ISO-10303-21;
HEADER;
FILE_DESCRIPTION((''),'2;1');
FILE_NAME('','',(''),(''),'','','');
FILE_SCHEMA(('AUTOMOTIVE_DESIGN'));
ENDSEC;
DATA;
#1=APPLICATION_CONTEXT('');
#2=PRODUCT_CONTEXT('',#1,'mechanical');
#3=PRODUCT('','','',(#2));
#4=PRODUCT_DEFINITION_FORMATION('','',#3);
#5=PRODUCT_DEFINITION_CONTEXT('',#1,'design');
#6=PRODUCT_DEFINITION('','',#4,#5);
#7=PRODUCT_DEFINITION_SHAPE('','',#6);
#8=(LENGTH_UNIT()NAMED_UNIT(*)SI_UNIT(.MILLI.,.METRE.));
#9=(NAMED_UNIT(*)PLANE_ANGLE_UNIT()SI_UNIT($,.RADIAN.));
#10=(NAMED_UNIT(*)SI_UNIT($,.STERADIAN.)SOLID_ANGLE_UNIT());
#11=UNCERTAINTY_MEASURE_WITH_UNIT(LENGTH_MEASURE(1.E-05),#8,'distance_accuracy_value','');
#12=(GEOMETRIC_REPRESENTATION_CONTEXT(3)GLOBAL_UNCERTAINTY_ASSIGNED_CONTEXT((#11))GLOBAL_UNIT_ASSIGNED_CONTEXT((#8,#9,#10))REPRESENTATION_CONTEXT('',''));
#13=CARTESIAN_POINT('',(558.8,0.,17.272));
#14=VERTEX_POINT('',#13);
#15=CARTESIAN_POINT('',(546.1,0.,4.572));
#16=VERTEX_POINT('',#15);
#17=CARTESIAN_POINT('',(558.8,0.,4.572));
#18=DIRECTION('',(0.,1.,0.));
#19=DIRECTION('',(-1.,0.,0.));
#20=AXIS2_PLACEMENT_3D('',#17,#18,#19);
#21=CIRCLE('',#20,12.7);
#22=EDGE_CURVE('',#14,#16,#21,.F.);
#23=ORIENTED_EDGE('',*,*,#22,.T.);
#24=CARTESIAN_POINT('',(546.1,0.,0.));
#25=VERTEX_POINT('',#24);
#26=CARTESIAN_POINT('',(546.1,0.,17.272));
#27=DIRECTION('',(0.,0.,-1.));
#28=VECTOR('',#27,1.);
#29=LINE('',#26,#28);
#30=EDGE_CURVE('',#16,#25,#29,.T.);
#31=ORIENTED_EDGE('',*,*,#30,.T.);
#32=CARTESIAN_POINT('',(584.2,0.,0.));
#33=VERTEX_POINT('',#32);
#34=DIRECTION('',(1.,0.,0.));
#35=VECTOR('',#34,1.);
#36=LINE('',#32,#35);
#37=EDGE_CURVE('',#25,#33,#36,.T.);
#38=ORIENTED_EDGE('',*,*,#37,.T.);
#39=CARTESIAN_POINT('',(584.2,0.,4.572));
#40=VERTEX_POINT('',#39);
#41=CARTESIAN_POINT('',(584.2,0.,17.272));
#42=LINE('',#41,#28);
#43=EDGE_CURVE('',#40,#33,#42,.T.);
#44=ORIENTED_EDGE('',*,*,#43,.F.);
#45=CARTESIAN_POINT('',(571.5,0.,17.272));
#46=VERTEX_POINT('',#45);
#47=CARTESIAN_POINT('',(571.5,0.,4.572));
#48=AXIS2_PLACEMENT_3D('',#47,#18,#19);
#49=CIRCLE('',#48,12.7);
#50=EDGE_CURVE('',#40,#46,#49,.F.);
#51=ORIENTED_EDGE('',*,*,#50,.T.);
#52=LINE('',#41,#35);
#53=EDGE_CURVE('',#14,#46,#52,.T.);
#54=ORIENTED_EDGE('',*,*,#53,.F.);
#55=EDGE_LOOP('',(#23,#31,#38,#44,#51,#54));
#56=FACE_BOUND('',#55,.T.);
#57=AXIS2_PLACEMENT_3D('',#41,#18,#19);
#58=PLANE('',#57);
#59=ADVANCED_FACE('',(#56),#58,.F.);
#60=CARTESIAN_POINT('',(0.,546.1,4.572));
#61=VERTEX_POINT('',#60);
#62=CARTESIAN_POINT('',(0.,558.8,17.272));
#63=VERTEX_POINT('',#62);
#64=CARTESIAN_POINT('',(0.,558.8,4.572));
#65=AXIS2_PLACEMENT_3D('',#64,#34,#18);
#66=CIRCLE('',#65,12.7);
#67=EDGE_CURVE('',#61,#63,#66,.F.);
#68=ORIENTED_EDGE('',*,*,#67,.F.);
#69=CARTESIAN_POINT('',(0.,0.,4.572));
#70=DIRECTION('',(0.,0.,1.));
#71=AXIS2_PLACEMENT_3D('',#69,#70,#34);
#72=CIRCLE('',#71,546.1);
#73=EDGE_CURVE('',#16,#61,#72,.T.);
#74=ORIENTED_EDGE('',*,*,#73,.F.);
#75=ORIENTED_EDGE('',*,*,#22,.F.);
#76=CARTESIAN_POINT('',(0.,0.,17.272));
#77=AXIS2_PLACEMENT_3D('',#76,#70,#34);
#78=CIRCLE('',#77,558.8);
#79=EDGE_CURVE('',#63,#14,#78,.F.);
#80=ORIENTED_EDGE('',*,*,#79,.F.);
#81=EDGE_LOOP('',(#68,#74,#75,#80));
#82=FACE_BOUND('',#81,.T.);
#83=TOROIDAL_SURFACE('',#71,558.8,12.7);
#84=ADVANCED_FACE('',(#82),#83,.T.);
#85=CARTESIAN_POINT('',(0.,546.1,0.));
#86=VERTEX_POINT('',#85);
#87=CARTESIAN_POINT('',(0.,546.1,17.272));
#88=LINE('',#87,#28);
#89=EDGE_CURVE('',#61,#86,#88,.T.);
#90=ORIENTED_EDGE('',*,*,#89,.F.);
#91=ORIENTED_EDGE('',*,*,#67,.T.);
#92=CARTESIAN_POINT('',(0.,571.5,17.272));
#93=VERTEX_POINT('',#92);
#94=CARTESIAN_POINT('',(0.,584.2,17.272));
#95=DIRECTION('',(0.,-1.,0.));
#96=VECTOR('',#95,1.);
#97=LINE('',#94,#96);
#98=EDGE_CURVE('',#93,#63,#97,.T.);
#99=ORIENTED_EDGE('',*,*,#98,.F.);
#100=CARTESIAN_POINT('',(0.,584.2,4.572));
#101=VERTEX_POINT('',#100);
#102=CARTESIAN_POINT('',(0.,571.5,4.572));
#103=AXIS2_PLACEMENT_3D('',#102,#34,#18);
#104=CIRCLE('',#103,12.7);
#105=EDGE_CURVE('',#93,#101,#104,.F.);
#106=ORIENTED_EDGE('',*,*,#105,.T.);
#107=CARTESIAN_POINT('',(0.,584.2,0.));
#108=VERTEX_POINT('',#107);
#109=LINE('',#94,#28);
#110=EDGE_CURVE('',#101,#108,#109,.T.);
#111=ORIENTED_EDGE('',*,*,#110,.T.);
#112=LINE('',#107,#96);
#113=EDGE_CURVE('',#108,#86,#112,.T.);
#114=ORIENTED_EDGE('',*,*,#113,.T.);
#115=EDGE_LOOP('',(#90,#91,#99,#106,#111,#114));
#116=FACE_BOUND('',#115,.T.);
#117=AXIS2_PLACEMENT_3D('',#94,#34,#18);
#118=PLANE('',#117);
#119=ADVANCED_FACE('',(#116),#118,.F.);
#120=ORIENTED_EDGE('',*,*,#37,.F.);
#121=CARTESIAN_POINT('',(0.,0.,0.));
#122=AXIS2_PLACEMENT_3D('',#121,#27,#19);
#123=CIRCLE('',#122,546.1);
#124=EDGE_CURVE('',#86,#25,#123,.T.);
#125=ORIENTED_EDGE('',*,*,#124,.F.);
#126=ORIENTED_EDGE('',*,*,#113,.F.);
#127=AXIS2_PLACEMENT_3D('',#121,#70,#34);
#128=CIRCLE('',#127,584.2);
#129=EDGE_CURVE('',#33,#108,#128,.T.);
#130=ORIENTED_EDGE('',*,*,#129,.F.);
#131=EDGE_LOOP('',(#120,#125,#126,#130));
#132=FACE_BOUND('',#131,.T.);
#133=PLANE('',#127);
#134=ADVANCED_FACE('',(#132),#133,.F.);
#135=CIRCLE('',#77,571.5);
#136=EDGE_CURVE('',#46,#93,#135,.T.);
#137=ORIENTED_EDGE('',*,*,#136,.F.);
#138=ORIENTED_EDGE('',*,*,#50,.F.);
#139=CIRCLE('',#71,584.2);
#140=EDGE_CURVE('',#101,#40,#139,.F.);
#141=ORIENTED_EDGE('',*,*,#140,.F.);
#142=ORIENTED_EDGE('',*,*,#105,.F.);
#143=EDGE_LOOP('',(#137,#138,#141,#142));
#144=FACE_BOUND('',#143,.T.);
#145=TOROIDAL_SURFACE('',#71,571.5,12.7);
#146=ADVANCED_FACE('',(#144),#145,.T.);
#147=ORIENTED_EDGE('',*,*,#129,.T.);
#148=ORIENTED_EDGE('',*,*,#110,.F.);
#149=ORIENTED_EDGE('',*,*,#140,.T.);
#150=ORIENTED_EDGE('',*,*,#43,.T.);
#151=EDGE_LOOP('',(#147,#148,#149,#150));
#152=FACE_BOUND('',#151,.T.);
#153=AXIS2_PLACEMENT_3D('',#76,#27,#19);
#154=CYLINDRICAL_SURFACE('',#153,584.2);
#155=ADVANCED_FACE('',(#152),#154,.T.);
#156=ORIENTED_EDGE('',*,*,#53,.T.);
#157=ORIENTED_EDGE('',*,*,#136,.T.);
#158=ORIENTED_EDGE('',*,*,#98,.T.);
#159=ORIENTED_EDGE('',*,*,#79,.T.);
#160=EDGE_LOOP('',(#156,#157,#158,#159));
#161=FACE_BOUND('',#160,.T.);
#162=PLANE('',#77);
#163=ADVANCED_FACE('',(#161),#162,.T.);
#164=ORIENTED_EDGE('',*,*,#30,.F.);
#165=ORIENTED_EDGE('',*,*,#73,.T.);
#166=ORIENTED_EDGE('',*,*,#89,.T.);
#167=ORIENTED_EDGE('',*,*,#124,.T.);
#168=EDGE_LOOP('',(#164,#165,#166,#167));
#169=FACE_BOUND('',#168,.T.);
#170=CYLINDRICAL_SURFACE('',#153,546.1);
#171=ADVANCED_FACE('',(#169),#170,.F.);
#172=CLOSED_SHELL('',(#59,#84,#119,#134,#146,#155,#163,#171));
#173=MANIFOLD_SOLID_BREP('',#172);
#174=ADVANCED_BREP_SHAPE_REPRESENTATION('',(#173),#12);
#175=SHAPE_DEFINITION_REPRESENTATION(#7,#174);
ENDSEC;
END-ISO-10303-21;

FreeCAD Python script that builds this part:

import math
import FreeCAD as App
import Part
import Sketcher

V = App.Vector
Q = App.Units.Quantity


def edges_at(feature, points):
    """Names of the edges that pass closest to the given points."""
    edges = feature.Shape.Edges
    near = lambda p: min(range(len(edges)), key=lambda i: edges[i].distToShape(Part.Vertex(*p))[0])
    return sorted({f"Edge{near(p) + 1}" for p in points})

doc = App.newDocument("Part")
body = doc.addObject("PartDesign::Body", "Body")

# Sketch on XY plane
sketch1 = body.newObject("Sketcher::SketchObject", "Sketch")
sketch1.AttachmentSupport = (doc.getObject("XY_Plane"), [""])
sketch1.MapMode = "FlatFace"
sketch1.addGeometry([
    Part.LineSegment(V(0, 584.2, 0), V(0, 546.1, 0)),
    Part.ArcOfCircle(Part.Circle(V(0, 0, 0), V(0, 0, 1), 546.1), math.radians(0), math.radians(90)),
    Part.LineSegment(V(546.1, 0, 0), V(584.2, 0, 0)),
    Part.ArcOfCircle(Part.Circle(V(0, 0, 0), V(0, 0, 1), 584.2), math.radians(0), math.radians(90)),
], False)
sketch1.addConstraint([
    Sketcher.Constraint("Coincident", 0, 2, 1, 2),
    Sketcher.Constraint("Coincident", 1, 1, 2, 1),
    Sketcher.Constraint("Coincident", 2, 2, 3, 1),
    Sketcher.Constraint("Coincident", 3, 2, 0, 1),
    Sketcher.Constraint("Vertical", 0),
    Sketcher.Constraint("Horizontal", 2),
    Sketcher.Constraint("Coincident", 1, 3, -1, 1),
    Sketcher.Constraint("Coincident", 3, 3, -1, 1),
    Sketcher.Constraint("PointOnObject", 0, 2, -2),
    Sketcher.Constraint("PointOnObject", 2, 2, -1),
    Sketcher.Constraint("Radius", 3, Q("23 in")),
    Sketcher.Constraint("Radius", 1, Q("21.5 in")),
])
pad1 = body.newObject("PartDesign::Pad", "Pad")
pad1.Profile = sketch1
pad1.Length = Q("0.68 in")
doc.recompute()

fillet = body.newObject("PartDesign::Fillet", "Fillet")
fillet.Base = (pad1, edges_at(pad1, [(386.151, 386.151, 17.272), (413.092, 413.092, 17.272)]))
fillet.Radius = Q("0.5 in")

doc.recompute()
